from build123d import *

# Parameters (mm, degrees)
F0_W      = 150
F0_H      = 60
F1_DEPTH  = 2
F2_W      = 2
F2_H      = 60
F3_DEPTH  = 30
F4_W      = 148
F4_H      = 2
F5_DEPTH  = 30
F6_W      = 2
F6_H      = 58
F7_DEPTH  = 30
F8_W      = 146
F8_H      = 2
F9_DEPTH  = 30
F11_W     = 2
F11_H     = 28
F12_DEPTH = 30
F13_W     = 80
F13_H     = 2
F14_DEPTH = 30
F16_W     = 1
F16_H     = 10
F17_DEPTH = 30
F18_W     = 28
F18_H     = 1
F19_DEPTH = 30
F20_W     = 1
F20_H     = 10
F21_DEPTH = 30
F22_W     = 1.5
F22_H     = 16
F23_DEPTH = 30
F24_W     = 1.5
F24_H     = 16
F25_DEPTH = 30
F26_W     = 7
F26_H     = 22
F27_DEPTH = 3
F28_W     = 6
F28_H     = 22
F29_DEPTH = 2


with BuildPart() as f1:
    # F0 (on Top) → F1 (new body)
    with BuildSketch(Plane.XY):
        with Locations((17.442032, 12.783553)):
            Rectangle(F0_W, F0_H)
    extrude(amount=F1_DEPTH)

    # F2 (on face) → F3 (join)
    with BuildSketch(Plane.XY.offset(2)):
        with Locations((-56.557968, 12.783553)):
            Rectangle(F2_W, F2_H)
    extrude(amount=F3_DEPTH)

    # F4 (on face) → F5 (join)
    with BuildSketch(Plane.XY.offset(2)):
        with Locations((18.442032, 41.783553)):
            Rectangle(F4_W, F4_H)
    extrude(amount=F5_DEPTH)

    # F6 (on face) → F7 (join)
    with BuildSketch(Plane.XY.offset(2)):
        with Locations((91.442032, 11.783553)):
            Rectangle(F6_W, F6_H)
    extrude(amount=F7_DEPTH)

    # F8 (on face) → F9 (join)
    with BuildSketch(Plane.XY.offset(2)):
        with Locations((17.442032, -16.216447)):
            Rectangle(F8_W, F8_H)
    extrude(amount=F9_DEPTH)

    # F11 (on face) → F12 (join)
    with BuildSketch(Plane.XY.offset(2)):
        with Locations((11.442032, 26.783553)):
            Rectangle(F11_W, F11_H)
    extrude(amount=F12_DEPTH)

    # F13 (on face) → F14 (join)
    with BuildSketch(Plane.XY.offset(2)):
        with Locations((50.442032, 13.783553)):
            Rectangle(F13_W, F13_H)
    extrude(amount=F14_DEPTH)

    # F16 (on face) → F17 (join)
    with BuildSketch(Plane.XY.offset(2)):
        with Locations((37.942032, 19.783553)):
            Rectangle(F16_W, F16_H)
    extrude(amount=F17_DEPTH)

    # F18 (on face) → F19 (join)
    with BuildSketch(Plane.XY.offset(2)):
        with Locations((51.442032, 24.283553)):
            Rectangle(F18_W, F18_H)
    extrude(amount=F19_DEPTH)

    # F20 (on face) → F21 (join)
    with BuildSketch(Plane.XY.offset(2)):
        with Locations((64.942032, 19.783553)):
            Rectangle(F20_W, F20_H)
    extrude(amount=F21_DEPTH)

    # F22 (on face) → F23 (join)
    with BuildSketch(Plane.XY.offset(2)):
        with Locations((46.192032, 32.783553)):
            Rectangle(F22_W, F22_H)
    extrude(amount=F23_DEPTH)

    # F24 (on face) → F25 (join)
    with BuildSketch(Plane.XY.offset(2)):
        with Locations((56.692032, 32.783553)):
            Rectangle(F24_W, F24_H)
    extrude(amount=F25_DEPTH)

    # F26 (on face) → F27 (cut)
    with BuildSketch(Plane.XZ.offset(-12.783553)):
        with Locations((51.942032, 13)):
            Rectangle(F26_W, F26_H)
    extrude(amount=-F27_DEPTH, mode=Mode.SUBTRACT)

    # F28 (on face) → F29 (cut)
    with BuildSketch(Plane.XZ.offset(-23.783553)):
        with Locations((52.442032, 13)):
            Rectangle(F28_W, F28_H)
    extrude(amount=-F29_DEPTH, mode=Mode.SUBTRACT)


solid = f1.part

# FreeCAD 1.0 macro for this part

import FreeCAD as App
import Part
import Sketcher

doc = App.newDocument("Part")
body = doc.addObject("PartDesign::Body", "Body")

# Sketch on XY plane
sketch1 = doc.addObject("Sketcher::SketchObject", "Sketch")
body.addObject(sketch1)
sketch1.AttachmentSupport = (doc.XY_Plane, [""])
sketch1.MapMode = "FlatFace"
sketch1.addGeometry([
    Part.LineSegment(App.Vector(-58, 43, 0), App.Vector(-58, -17, 0)),
    Part.LineSegment(App.Vector(-58, -17, 0), App.Vector(92, -17, 0)),
    Part.LineSegment(App.Vector(92, -17, 0), App.Vector(92, 43, 0)),
    Part.LineSegment(App.Vector(92, 43, 0), App.Vector(-58, 43, 0)),
], False)
sketch1.addConstraint([
    Sketcher.Constraint("Coincident", 0, 2, 1, 1),
    Sketcher.Constraint("Coincident", 1, 2, 2, 1),
    Sketcher.Constraint("Coincident", 2, 2, 3, 1),
    Sketcher.Constraint("Coincident", 3, 2, 0, 1),
    Sketcher.Constraint("Vertical", 0),
    Sketcher.Constraint("Horizontal", 1),
    Sketcher.Constraint("Vertical", 2),
    Sketcher.Constraint("Horizontal", 3),
    Sketcher.Constraint("DistanceX", 1, 1, 1, 2, 150.0),
    Sketcher.Constraint("DistanceY", 0, 2, 0, 1, 60.0),
    Sketcher.Constraint("DistanceX", 0, 2, -1, 1, 57.557968),
    Sketcher.Constraint("DistanceY", 0, 2, -1, 1, 17.216447),
])
pad1 = doc.addObject("PartDesign::Pad", "Pad")
body.addObject(pad1)
pad1.Profile = sketch1
pad1.Length = 2

# Sketch on XY plane
sketch2 = doc.addObject("Sketcher::SketchObject", "Sketch001")
body.addObject(sketch2)
sketch2.AttachmentSupport = (doc.XY_Plane, [""])
sketch2.MapMode = "FlatFace"
sketch2.AttachmentOffset = App.Placement(App.Vector(0, 0, 2), App.Rotation())
sketch2.addGeometry([
    Part.LineSegment(App.Vector(-57.6, 42.8, 0), App.Vector(-57.6, -17.2, 0)),
    Part.LineSegment(App.Vector(-57.6, -17.2, 0), App.Vector(-55.6, -17.2, 0)),
    Part.LineSegment(App.Vector(-55.6, -17.2, 0), App.Vector(-55.6, 42.8, 0)),
    Part.LineSegment(App.Vector(-55.6, 42.8, 0), App.Vector(-57.6, 42.8, 0)),
], False)
sketch2.addConstraint([
    Sketcher.Constraint("Coincident", 0, 2, 1, 1),
    Sketcher.Constraint("Coincident", 1, 2, 2, 1),
    Sketcher.Constraint("Coincident", 2, 2, 3, 1),
    Sketcher.Constraint("Coincident", 3, 2, 0, 1),
    Sketcher.Constraint("Vertical", 0),
    Sketcher.Constraint("Horizontal", 1),
    Sketcher.Constraint("Vertical", 2),
    Sketcher.Constraint("Horizontal", 3),
    Sketcher.Constraint("DistanceX", 1, 1, 1, 2, 2.0),
    Sketcher.Constraint("DistanceY", 0, 2, 0, 1, 60.0),
    Sketcher.Constraint("DistanceX", 0, 2, -1, 1, 57.557968),
    Sketcher.Constraint("DistanceY", 0, 2, -1, 1, 17.216447),
])
pad2 = doc.addObject("PartDesign::Pad", "Pad001")
body.addObject(pad2)
pad2.Profile = sketch2
pad2.Length = 30

# Sketch on XY plane
sketch3 = doc.addObject("Sketcher::SketchObject", "Sketch002")
body.addObject(sketch3)
sketch3.AttachmentSupport = (doc.XY_Plane, [""])
sketch3.MapMode = "FlatFace"
sketch3.AttachmentOffset = App.Placement(App.Vector(0, 0, 2), App.Rotation())
sketch3.addGeometry([
    Part.LineSegment(App.Vector(-55.6, 42.8, 0), App.Vector(-55.6, 40.8, 0)),
    Part.LineSegment(App.Vector(-55.6, 40.8, 0), App.Vector(92.4, 40.8, 0)),
    Part.LineSegment(App.Vector(92.4, 40.8, 0), App.Vector(92.4, 42.8, 0)),
    Part.LineSegment(App.Vector(92.4, 42.8, 0), App.Vector(-55.6, 42.8, 0)),
], False)
sketch3.addConstraint([
    Sketcher.Constraint("Coincident", 0, 2, 1, 1),
    Sketcher.Constraint("Coincident", 1, 2, 2, 1),
    Sketcher.Constraint("Coincident", 2, 2, 3, 1),
    Sketcher.Constraint("Coincident", 3, 2, 0, 1),
    Sketcher.Constraint("Vertical", 0),
    Sketcher.Constraint("Horizontal", 1),
    Sketcher.Constraint("Vertical", 2),
    Sketcher.Constraint("Horizontal", 3),
    Sketcher.Constraint("DistanceX", 1, 1, 1, 2, 148.0),
    Sketcher.Constraint("DistanceY", 0, 2, 0, 1, 2.0),
    Sketcher.Constraint("DistanceX", 0, 2, -1, 1, 55.557968),
    Sketcher.Constraint("DistanceY", -1, 1, 0, 2, 40.783553),
])
pad3 = doc.addObject("PartDesign::Pad", "Pad002")
body.addObject(pad3)
pad3.Profile = sketch3
pad3.Length = 30

# Sketch on XY plane
sketch4 = doc.addObject("Sketcher::SketchObject", "Sketch003")
body.addObject(sketch4)
sketch4.AttachmentSupport = (doc.XY_Plane, [""])
sketch4.MapMode = "FlatFace"
sketch4.AttachmentOffset = App.Placement(App.Vector(0, 0, 2), App.Rotation())
sketch4.addGeometry([
    Part.LineSegment(App.Vector(90.4, 40.8, 0), App.Vector(90.4, -17.2, 0)),
    Part.LineSegment(App.Vector(90.4, -17.2, 0), App.Vector(92.4, -17.2, 0)),
    Part.LineSegment(App.Vector(92.4, -17.2, 0), App.Vector(92.4, 40.8, 0)),
    Part.LineSegment(App.Vector(92.4, 40.8, 0), App.Vector(90.4, 40.8, 0)),
], False)
sketch4.addConstraint([
    Sketcher.Constraint("Coincident", 0, 2, 1, 1),
    Sketcher.Constraint("Coincident", 1, 2, 2, 1),
    Sketcher.Constraint("Coincident", 2, 2, 3, 1),
    Sketcher.Constraint("Coincident", 3, 2, 0, 1),
    Sketcher.Constraint("Vertical", 0),
    Sketcher.Constraint("Horizontal", 1),
    Sketcher.Constraint("Vertical", 2),
    Sketcher.Constraint("Horizontal", 3),
    Sketcher.Constraint("DistanceX", 1, 1, 1, 2, 2.0),
    Sketcher.Constraint("DistanceY", 0, 2, 0, 1, 58.0),
    Sketcher.Constraint("DistanceX", -1, 1, 0, 2, 90.442032),
    Sketcher.Constraint("DistanceY", 0, 2, -1, 1, 17.216447),
])
pad4 = doc.addObject("PartDesign::Pad", "Pad003")
body.addObject(pad4)
pad4.Profile = sketch4
pad4.Length = 30

# Sketch on XY plane
sketch5 = doc.addObject("Sketcher::SketchObject", "Sketch004")
body.addObject(sketch5)
sketch5.AttachmentSupport = (doc.XY_Plane, [""])
sketch5.MapMode = "FlatFace"
sketch5.AttachmentOffset = App.Placement(App.Vector(0, 0, 2), App.Rotation())
sketch5.addGeometry([
    Part.LineSegment(App.Vector(-55.6, -15.2, 0), App.Vector(-55.6, -17.2, 0)),
    Part.LineSegment(App.Vector(-55.6, -17.2, 0), App.Vector(90.4, -17.2, 0)),
    Part.LineSegment(App.Vector(90.4, -17.2, 0), App.Vector(90.4, -15.2, 0)),
    Part.LineSegment(App.Vector(90.4, -15.2, 0), App.Vector(-55.6, -15.2, 0)),
], False)
sketch5.addConstraint([
    Sketcher.Constraint("Coincident", 0, 2, 1, 1),
    Sketcher.Constraint("Coincident", 1, 2, 2, 1),
    Sketcher.Constraint("Coincident", 2, 2, 3, 1),
    Sketcher.Constraint("Coincident", 3, 2, 0, 1),
    Sketcher.Constraint("Vertical", 0),
    Sketcher.Constraint("Horizontal", 1),
    Sketcher.Constraint("Vertical", 2),
    Sketcher.Constraint("Horizontal", 3),
    Sketcher.Constraint("DistanceX", 1, 1, 1, 2, 146.0),
    Sketcher.Constraint("DistanceY", 0, 2, 0, 1, 2.0),
    Sketcher.Constraint("DistanceX", 0, 2, -1, 1, 55.557968),
    Sketcher.Constraint("DistanceY", 0, 2, -1, 1, 17.216447),
])
pad5 = doc.addObject("PartDesign::Pad", "Pad004")
body.addObject(pad5)
pad5.Profile = sketch5
pad5.Length = 30

# Sketch on XY plane
sketch6 = doc.addObject("Sketcher::SketchObject", "Sketch005")
body.addObject(sketch6)
sketch6.AttachmentSupport = (doc.XY_Plane, [""])
sketch6.MapMode = "FlatFace"
sketch6.AttachmentOffset = App.Placement(App.Vector(0, 0, 2), App.Rotation())
sketch6.addGeometry([
    Part.LineSegment(App.Vector(10.4, 40.8, 0), App.Vector(10.4, 12.8, 0)),
    Part.LineSegment(App.Vector(10.4, 12.8, 0), App.Vector(12.4, 12.8, 0)),
    Part.LineSegment(App.Vector(12.4, 12.8, 0), App.Vector(12.4, 40.8, 0)),
    Part.LineSegment(App.Vector(12.4, 40.8, 0), App.Vector(10.4, 40.8, 0)),
], False)
sketch6.addConstraint([
    Sketcher.Constraint("Coincident", 0, 2, 1, 1),
    Sketcher.Constraint("Coincident", 1, 2, 2, 1),
    Sketcher.Constraint("Coincident", 2, 2, 3, 1),
    Sketcher.Constraint("Coincident", 3, 2, 0, 1),
    Sketcher.Constraint("Vertical", 0),
    Sketcher.Constraint("Horizontal", 1),
    Sketcher.Constraint("Vertical", 2),
    Sketcher.Constraint("Horizontal", 3),
    Sketcher.Constraint("DistanceX", 1, 1, 1, 2, 2.0),
    Sketcher.Constraint("DistanceY", 0, 2, 0, 1, 28.0),
    Sketcher.Constraint("DistanceX", -1, 1, 0, 2, 10.442032),
    Sketcher.Constraint("DistanceY", -1, 1, 0, 2, 12.783553),
])
pad6 = doc.addObject("PartDesign::Pad", "Pad005")
body.addObject(pad6)
pad6.Profile = sketch6
pad6.Length = 30

# Sketch on XY plane
sketch7 = doc.addObject("Sketcher::SketchObject", "Sketch006")
body.addObject(sketch7)
sketch7.AttachmentSupport = (doc.XY_Plane, [""])
sketch7.MapMode = "FlatFace"
sketch7.AttachmentOffset = App.Placement(App.Vector(0, 0, 2), App.Rotation())
sketch7.addGeometry([
    Part.LineSegment(App.Vector(10.4, 14.8, 0), App.Vector(10.4, 12.8, 0)),
    Part.LineSegment(App.Vector(10.4, 12.8, 0), App.Vector(90.4, 12.8, 0)),
    Part.LineSegment(App.Vector(90.4, 12.8, 0), App.Vector(90.4, 14.8, 0)),
    Part.LineSegment(App.Vector(90.4, 14.8, 0), App.Vector(10.4, 14.8, 0)),
], False)
sketch7.addConstraint([
    Sketcher.Constraint("Coincident", 0, 2, 1, 1),
    Sketcher.Constraint("Coincident", 1, 2, 2, 1),
    Sketcher.Constraint("Coincident", 2, 2, 3, 1),
    Sketcher.Constraint("Coincident", 3, 2, 0, 1),
    Sketcher.Constraint("Vertical", 0),
    Sketcher.Constraint("Horizontal", 1),
    Sketcher.Constraint("Vertical", 2),
    Sketcher.Constraint("Horizontal", 3),
    Sketcher.Constraint("DistanceX", 1, 1, 1, 2, 80.0),
    Sketcher.Constraint("DistanceY", 0, 2, 0, 1, 2.0),
    Sketcher.Constraint("DistanceX", -1, 1, 0, 2, 10.442032),
    Sketcher.Constraint("DistanceY", -1, 1, 0, 2, 12.783553),
])
pad7 = doc.addObject("PartDesign::Pad", "Pad006")
body.addObject(pad7)
pad7.Profile = sketch7
pad7.Length = 30

# Sketch on XY plane
sketch8 = doc.addObject("Sketcher::SketchObject", "Sketch007")
body.addObject(sketch8)
sketch8.AttachmentSupport = (doc.XY_Plane, [""])
sketch8.MapMode = "FlatFace"
sketch8.AttachmentOffset = App.Placement(App.Vector(0, 0, 2), App.Rotation())
sketch8.addGeometry([
    Part.LineSegment(App.Vector(37.4, 24.8, 0), App.Vector(37.4, 14.8, 0)),
    Part.LineSegment(App.Vector(37.4, 14.8, 0), App.Vector(38.4, 14.8, 0)),
    Part.LineSegment(App.Vector(38.4, 14.8, 0), App.Vector(38.4, 24.8, 0)),
    Part.LineSegment(App.Vector(38.4, 24.8, 0), App.Vector(37.4, 24.8, 0)),
], False)
sketch8.addConstraint([
    Sketcher.Constraint("Coincident", 0, 2, 1, 1),
    Sketcher.Constraint("Coincident", 1, 2, 2, 1),
    Sketcher.Constraint("Coincident", 2, 2, 3, 1),
    Sketcher.Constraint("Coincident", 3, 2, 0, 1),
    Sketcher.Constraint("Vertical", 0),
    Sketcher.Constraint("Horizontal", 1),
    Sketcher.Constraint("Vertical", 2),
    Sketcher.Constraint("Horizontal", 3),
    Sketcher.Constraint("DistanceX", 1, 1, 1, 2, 1.0),
    Sketcher.Constraint("DistanceY", 0, 2, 0, 1, 10.0),
    Sketcher.Constraint("DistanceX", -1, 1, 0, 2, 37.442032),
    Sketcher.Constraint("DistanceY", -1, 1, 0, 2, 14.783553),
])
pad8 = doc.addObject("PartDesign::Pad", "Pad007")
body.addObject(pad8)
pad8.Profile = sketch8
pad8.Length = 30

# Sketch on XY plane
sketch9 = doc.addObject("Sketcher::SketchObject", "Sketch008")
body.addObject(sketch9)
sketch9.AttachmentSupport = (doc.XY_Plane, [""])
sketch9.MapMode = "FlatFace"
sketch9.AttachmentOffset = App.Placement(App.Vector(0, 0, 2), App.Rotation())
sketch9.addGeometry([
    Part.LineSegment(App.Vector(37.4, 24.8, 0), App.Vector(37.4, 23.8, 0)),
    Part.LineSegment(App.Vector(37.4, 23.8, 0), App.Vector(65.4, 23.8, 0)),
    Part.LineSegment(App.Vector(65.4, 23.8, 0), App.Vector(65.4, 24.8, 0)),
    Part.LineSegment(App.Vector(65.4, 24.8, 0), App.Vector(37.4, 24.8, 0)),
], False)
sketch9.addConstraint([
    Sketcher.Constraint("Coincident", 0, 2, 1, 1),
    Sketcher.Constraint("Coincident", 1, 2, 2, 1),
    Sketcher.Constraint("Coincident", 2, 2, 3, 1),
    Sketcher.Constraint("Coincident", 3, 2, 0, 1),
    Sketcher.Constraint("Vertical", 0),
    Sketcher.Constraint("Horizontal", 1),
    Sketcher.Constraint("Vertical", 2),
    Sketcher.Constraint("Horizontal", 3),
    Sketcher.Constraint("DistanceX", 1, 1, 1, 2, 28.0),
    Sketcher.Constraint("DistanceY", 0, 2, 0, 1, 1.0),
    Sketcher.Constraint("DistanceX", -1, 1, 0, 2, 37.442032),
    Sketcher.Constraint("DistanceY", -1, 1, 0, 2, 23.783553),
])
pad9 = doc.addObject("PartDesign::Pad", "Pad008")
body.addObject(pad9)
pad9.Profile = sketch9
pad9.Length = 30

# Sketch on XY plane
sketch10 = doc.addObject("Sketcher::SketchObject", "Sketch009")
body.addObject(sketch10)
sketch10.AttachmentSupport = (doc.XY_Plane, [""])
sketch10.MapMode = "FlatFace"
sketch10.AttachmentOffset = App.Placement(App.Vector(0, 0, 2), App.Rotation())
sketch10.addGeometry([
    Part.LineSegment(App.Vector(64.4, 24.8, 0), App.Vector(64.4, 14.8, 0)),
    Part.LineSegment(App.Vector(64.4, 14.8, 0), App.Vector(65.4, 14.8, 0)),
    Part.LineSegment(App.Vector(65.4, 14.8, 0), App.Vector(65.4, 24.8, 0)),
    Part.LineSegment(App.Vector(65.4, 24.8, 0), App.Vector(64.4, 24.8, 0)),
], False)
sketch10.addConstraint([
    Sketcher.Constraint("Coincident", 0, 2, 1, 1),
    Sketcher.Constraint("Coincident", 1, 2, 2, 1),
    Sketcher.Constraint("Coincident", 2, 2, 3, 1),
    Sketcher.Constraint("Coincident", 3, 2, 0, 1),
    Sketcher.Constraint("Vertical", 0),
    Sketcher.Constraint("Horizontal", 1),
    Sketcher.Constraint("Vertical", 2),
    Sketcher.Constraint("Horizontal", 3),
    Sketcher.Constraint("DistanceX", 1, 1, 1, 2, 1.0),
    Sketcher.Constraint("DistanceY", 0, 2, 0, 1, 10.0),
    Sketcher.Constraint("DistanceX", -1, 1, 0, 2, 64.442032),
    Sketcher.Constraint("DistanceY", -1, 1, 0, 2, 14.783553),
])
pad10 = doc.addObject("PartDesign::Pad", "Pad009")
body.addObject(pad10)
pad10.Profile = sketch10
pad10.Length = 30

# Sketch on XY plane
sketch11 = doc.addObject("Sketcher::SketchObject", "Sketch010")
body.addObject(sketch11)
sketch11.AttachmentSupport = (doc.XY_Plane, [""])
sketch11.MapMode = "FlatFace"
sketch11.AttachmentOffset = App.Placement(App.Vector(0, 0, 2), App.Rotation())
sketch11.addGeometry([
    Part.LineSegment(App.Vector(45.4, 40.8, 0), App.Vector(45.4, 24.8, 0)),
    Part.LineSegment(App.Vector(45.4, 24.8, 0), App.Vector(46.9, 24.8, 0)),
    Part.LineSegment(App.Vector(46.9, 24.8, 0), App.Vector(46.9, 40.8, 0)),
    Part.LineSegment(App.Vector(46.9, 40.8, 0), App.Vector(45.4, 40.8, 0)),
], False)
sketch11.addConstraint([
    Sketcher.Constraint("Coincident", 0, 2, 1, 1),
    Sketcher.Constraint("Coincident", 1, 2, 2, 1),
    Sketcher.Constraint("Coincident", 2, 2, 3, 1),
    Sketcher.Constraint("Coincident", 3, 2, 0, 1),
    Sketcher.Constraint("Vertical", 0),
    Sketcher.Constraint("Horizontal", 1),
    Sketcher.Constraint("Vertical", 2),
    Sketcher.Constraint("Horizontal", 3),
    Sketcher.Constraint("DistanceY", 0, 2, 0, 1, 16.0),
    Sketcher.Constraint("DistanceX", 1, 1, 1, 2, 1.5),
    Sketcher.Constraint("DistanceX", -1, 1, 0, 2, 45.442032),
    Sketcher.Constraint("DistanceY", -1, 1, 0, 2, 24.783553),
])
pad11 = doc.addObject("PartDesign::Pad", "Pad010")
body.addObject(pad11)
pad11.Profile = sketch11
pad11.Length = 30

# Sketch on XY plane
sketch12 = doc.addObject("Sketcher::SketchObject", "Sketch011")
body.addObject(sketch12)
sketch12.AttachmentSupport = (doc.XY_Plane, [""])
sketch12.MapMode = "FlatFace"
sketch12.AttachmentOffset = App.Placement(App.Vector(0, 0, 2), App.Rotation())
sketch12.addGeometry([
    Part.LineSegment(App.Vector(55.9, 40.8, 0), App.Vector(55.9, 24.8, 0)),
    Part.LineSegment(App.Vector(55.9, 24.8, 0), App.Vector(57.4, 24.8, 0)),
    Part.LineSegment(App.Vector(57.4, 24.8, 0), App.Vector(57.4, 40.8, 0)),
    Part.LineSegment(App.Vector(57.4, 40.8, 0), App.Vector(55.9, 40.8, 0)),
], False)
sketch12.addConstraint([
    Sketcher.Constraint("Coincident", 0, 2, 1, 1),
    Sketcher.Constraint("Coincident", 1, 2, 2, 1),
    Sketcher.Constraint("Coincident", 2, 2, 3, 1),
    Sketcher.Constraint("Coincident", 3, 2, 0, 1),
    Sketcher.Constraint("Vertical", 0),
    Sketcher.Constraint("Horizontal", 1),
    Sketcher.Constraint("Vertical", 2),
    Sketcher.Constraint("Horizontal", 3),
    Sketcher.Constraint("DistanceY", 0, 2, 0, 1, 16.0),
    Sketcher.Constraint("DistanceX", 1, 1, 1, 2, 1.5),
    Sketcher.Constraint("DistanceX", -1, 1, 0, 2, 55.942032),
    Sketcher.Constraint("DistanceY", -1, 1, 0, 2, 24.783553),
])
pad12 = doc.addObject("PartDesign::Pad", "Pad011")
body.addObject(pad12)
pad12.Profile = sketch12
pad12.Length = 30

# Sketch on XZ plane
sketch13 = doc.addObject("Sketcher::SketchObject", "Sketch012")
body.addObject(sketch13)
sketch13.AttachmentSupport = (doc.XZ_Plane, [""])
sketch13.MapMode = "FlatFace"
sketch13.AttachmentOffset = App.Placement(App.Vector(0, 0, -12.783553), App.Rotation())
sketch13.addGeometry([
    Part.LineSegment(App.Vector(48, 24, 0), App.Vector(48, 2, 0)),
    Part.LineSegment(App.Vector(48, 2, 0), App.Vector(55, 2, 0)),
    Part.LineSegment(App.Vector(55, 2, 0), App.Vector(55, 24, 0)),
    Part.LineSegment(App.Vector(55, 24, 0), App.Vector(48, 24, 0)),
], False)
sketch13.addConstraint([
    Sketcher.Constraint("Coincident", 0, 2, 1, 1),
    Sketcher.Constraint("Coincident", 1, 2, 2, 1),
    Sketcher.Constraint("Coincident", 2, 2, 3, 1),
    Sketcher.Constraint("Coincident", 3, 2, 0, 1),
    Sketcher.Constraint("Vertical", 0),
    Sketcher.Constraint("Horizontal", 1),
    Sketcher.Constraint("Vertical", 2),
    Sketcher.Constraint("Horizontal", 3),
    Sketcher.Constraint("DistanceX", 1, 1, 1, 2, 7.0),
    Sketcher.Constraint("DistanceY", 0, 2, 0, 1, 22.0),
    Sketcher.Constraint("DistanceY", -1, 1, 0, 2, 2.0),
    Sketcher.Constraint("DistanceX", -1, 1, 0, 2, 48.442032),
])
pocket1 = doc.addObject("PartDesign::Pocket", "Pocket")
body.addObject(pocket1)
pocket1.Profile = sketch13
pocket1.Length = 3

# Sketch on XZ plane
sketch14 = doc.addObject("Sketcher::SketchObject", "Sketch013")
body.addObject(sketch14)
sketch14.AttachmentSupport = (doc.XZ_Plane, [""])
sketch14.MapMode = "FlatFace"
sketch14.AttachmentOffset = App.Placement(App.Vector(0, 0, -23.783553), App.Rotation())
sketch14.addGeometry([
    Part.LineSegment(App.Vector(49, 24, 0), App.Vector(49, 2, 0)),
    Part.LineSegment(App.Vector(49, 2, 0), App.Vector(55, 2, 0)),
    Part.LineSegment(App.Vector(55, 2, 0), App.Vector(55, 24, 0)),
    Part.LineSegment(App.Vector(55, 24, 0), App.Vector(49, 24, 0)),
], False)
sketch14.addConstraint([
    Sketcher.Constraint("Coincident", 0, 2, 1, 1),
    Sketcher.Constraint("Coincident", 1, 2, 2, 1),
    Sketcher.Constraint("Coincident", 2, 2, 3, 1),
    Sketcher.Constraint("Coincident", 3, 2, 0, 1),
    Sketcher.Constraint("Vertical", 0),
    Sketcher.Constraint("Horizontal", 1),
    Sketcher.Constraint("Vertical", 2),
    Sketcher.Constraint("Horizontal", 3),
    Sketcher.Constraint("DistanceX", 1, 1, 1, 2, 6.0),
    Sketcher.Constraint("DistanceY", 0, 2, 0, 1, 22.0),
    Sketcher.Constraint("DistanceY", -1, 1, 0, 2, 2.0),
    Sketcher.Constraint("DistanceX", -1, 1, 0, 2, 49.442032),
])
pocket2 = doc.addObject("PartDesign::Pocket", "Pocket001")
body.addObject(pocket2)
pocket2.Profile = sketch14
pocket2.Length = 2

doc.recompute()
